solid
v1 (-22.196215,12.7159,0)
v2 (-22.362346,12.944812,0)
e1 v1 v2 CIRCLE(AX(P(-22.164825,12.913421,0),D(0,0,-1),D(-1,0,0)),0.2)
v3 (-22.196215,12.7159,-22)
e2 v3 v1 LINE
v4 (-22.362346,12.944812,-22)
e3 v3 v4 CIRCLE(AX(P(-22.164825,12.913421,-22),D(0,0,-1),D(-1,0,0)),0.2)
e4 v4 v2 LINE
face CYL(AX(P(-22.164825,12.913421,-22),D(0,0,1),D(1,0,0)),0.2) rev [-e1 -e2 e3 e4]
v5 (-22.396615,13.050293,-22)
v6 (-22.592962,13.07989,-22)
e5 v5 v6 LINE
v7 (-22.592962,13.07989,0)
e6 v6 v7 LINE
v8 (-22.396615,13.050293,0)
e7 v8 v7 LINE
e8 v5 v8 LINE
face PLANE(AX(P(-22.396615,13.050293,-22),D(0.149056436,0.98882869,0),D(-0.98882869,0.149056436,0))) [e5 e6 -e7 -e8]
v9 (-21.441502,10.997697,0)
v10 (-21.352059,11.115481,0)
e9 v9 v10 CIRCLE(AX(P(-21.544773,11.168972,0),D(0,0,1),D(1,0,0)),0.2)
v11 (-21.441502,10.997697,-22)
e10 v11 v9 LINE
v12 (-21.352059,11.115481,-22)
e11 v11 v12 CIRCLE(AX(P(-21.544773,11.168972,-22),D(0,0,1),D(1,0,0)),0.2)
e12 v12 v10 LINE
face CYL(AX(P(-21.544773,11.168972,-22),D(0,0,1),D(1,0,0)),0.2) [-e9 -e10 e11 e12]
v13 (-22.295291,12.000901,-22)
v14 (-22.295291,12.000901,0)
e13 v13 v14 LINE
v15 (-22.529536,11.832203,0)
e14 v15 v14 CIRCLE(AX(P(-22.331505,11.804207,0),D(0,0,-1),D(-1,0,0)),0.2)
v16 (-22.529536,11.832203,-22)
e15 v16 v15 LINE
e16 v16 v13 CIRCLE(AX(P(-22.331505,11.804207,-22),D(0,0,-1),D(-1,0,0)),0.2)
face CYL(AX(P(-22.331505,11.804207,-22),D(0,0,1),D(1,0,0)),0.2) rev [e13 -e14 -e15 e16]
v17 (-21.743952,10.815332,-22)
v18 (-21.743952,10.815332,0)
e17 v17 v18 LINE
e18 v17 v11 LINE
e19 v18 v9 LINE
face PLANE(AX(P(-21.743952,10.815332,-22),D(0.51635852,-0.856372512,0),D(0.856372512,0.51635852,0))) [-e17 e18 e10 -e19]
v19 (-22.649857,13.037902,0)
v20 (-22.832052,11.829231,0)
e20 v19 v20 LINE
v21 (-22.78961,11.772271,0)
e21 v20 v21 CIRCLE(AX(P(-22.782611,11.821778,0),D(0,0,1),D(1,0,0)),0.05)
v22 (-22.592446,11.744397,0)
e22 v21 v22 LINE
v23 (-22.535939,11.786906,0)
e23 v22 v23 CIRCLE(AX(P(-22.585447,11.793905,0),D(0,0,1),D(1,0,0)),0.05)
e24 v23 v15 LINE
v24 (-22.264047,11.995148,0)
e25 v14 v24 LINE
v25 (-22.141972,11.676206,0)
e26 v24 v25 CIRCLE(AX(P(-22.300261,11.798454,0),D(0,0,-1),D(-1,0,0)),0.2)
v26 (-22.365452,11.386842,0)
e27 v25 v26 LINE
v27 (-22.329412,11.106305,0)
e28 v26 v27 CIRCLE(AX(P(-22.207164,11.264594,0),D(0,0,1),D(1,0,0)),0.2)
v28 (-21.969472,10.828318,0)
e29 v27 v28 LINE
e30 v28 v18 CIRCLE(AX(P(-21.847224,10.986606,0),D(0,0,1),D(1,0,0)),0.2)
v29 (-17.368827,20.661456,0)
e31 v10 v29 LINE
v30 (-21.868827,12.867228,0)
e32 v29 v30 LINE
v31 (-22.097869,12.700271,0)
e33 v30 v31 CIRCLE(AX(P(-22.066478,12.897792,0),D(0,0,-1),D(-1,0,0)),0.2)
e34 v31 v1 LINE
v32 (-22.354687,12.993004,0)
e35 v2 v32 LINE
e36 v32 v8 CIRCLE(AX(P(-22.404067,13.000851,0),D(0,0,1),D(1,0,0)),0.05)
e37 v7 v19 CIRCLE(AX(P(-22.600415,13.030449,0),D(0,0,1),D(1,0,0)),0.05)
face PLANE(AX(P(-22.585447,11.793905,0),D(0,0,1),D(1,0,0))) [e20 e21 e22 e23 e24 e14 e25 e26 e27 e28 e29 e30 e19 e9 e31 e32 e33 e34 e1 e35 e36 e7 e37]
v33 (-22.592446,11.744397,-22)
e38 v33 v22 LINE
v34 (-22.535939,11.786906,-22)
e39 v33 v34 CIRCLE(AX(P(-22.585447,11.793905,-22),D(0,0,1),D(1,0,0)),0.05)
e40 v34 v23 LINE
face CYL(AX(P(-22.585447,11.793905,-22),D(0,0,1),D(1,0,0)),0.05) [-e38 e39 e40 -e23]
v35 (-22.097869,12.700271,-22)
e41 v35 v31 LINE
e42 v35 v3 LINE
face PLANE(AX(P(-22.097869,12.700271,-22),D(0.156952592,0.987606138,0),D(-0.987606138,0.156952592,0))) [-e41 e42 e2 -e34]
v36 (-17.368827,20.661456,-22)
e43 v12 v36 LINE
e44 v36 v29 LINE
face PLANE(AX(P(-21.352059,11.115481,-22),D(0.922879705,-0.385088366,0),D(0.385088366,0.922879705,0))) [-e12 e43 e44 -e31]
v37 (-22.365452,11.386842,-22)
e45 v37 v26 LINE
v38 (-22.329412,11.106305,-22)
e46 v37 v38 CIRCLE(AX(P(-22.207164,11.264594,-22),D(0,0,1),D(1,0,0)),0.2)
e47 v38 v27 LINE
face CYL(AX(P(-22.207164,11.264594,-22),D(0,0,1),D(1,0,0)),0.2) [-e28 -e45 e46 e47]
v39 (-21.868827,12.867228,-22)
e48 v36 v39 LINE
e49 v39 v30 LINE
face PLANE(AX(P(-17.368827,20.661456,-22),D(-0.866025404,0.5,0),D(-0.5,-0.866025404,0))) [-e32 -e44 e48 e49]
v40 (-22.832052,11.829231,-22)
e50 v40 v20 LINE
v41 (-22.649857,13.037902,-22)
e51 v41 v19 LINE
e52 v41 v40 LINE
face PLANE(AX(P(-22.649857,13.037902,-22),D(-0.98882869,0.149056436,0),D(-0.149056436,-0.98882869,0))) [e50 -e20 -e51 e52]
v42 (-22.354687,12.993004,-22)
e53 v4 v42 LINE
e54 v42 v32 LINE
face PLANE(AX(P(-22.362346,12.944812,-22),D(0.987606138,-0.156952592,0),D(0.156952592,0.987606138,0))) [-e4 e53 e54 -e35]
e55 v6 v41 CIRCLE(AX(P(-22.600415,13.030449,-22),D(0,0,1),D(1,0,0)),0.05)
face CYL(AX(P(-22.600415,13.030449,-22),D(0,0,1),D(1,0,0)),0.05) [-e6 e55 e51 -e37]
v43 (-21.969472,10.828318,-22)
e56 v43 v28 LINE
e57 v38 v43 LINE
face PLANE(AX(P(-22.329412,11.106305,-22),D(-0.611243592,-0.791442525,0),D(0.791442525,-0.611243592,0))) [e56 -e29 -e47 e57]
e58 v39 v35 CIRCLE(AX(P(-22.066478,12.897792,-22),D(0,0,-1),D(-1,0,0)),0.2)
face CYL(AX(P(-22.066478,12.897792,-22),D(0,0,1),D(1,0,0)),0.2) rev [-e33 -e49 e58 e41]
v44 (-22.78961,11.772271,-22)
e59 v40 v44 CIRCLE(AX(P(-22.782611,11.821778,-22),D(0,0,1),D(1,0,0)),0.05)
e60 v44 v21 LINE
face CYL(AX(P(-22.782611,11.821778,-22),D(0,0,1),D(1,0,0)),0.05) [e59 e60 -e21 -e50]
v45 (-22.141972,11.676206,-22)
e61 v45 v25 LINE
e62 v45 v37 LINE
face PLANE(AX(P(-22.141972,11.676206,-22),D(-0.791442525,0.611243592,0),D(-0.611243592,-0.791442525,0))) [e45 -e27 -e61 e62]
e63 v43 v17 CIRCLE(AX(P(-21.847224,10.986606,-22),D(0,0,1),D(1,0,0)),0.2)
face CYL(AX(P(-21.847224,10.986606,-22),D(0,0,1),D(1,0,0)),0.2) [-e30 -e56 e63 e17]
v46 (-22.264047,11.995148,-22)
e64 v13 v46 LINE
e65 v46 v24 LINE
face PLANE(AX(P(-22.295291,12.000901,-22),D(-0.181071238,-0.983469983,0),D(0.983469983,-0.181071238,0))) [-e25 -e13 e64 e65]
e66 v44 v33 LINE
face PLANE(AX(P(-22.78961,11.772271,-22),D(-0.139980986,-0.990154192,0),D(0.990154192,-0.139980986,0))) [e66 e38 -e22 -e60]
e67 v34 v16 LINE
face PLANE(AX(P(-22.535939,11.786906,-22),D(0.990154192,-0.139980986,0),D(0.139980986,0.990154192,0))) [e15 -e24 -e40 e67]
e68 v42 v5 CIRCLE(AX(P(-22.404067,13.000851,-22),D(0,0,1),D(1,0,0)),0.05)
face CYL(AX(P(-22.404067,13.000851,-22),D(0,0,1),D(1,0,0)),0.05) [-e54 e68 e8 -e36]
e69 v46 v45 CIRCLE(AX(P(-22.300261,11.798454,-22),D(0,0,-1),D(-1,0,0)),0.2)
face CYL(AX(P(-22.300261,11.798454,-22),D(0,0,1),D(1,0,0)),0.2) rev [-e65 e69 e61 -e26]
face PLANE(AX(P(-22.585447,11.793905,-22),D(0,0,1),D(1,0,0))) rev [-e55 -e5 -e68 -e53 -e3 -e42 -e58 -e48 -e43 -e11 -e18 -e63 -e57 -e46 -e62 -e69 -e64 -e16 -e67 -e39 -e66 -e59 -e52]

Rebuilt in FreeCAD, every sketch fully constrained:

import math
import FreeCAD as App
import Part
import Sketcher
Q = App.Units.Quantity

doc = App.newDocument("Part")
body = doc.addObject("PartDesign::Body", "Body")

sketch1 = body.newObject("Sketcher::SketchObject", "Sketch")
sketch1.AttachmentSupport = (doc.getObject("XY_Plane"), [""])
sketch1.MapMode = "FlatFace"
sketch1.addGeometry([
    Part.LineSegment(App.Vector(-21.352059, 11.115481, 0), App.Vector(-17.368827, 20.661456, 0)),
    Part.LineSegment(App.Vector(-17.368827, 20.661456, 0), App.Vector(-21.868827, 12.867228, 0)),
    Part.ArcOfCircle(Part.Circle(App.Vector(-22.066478, 12.897792, 0), App.Vector(0, 0, 1), 0.2), math.radians(-99.030058), math.radians(-8.790376)),
    Part.LineSegment(App.Vector(-22.097869, 12.700271, 0), App.Vector(-22.196215, 12.7159, 0)),
    Part.ArcOfCircle(Part.Circle(App.Vector(-22.164825, 12.913421, 0), App.Vector(0, 0, 1), 0.2), math.radians(170.969942), math.radians(260.969943)),
    Part.LineSegment(App.Vector(-22.362346, 12.944812, 0), App.Vector(-22.354687, 12.993004, 0)),
    Part.ArcOfCircle(Part.Circle(App.Vector(-22.404067, 13.000851, 0), App.Vector(0, 0, 1), 0.05), math.radians(-9.030057), math.radians(81.427749)),
    Part.LineSegment(App.Vector(-22.396615, 13.050293, 0), App.Vector(-22.592962, 13.07989, 0)),
    Part.ArcOfCircle(Part.Circle(App.Vector(-22.600415, 13.030449, 0), App.Vector(0, 0, 1), 0.05), math.radians(81.427751), math.radians(171.42775)),
    Part.LineSegment(App.Vector(-22.649857, 13.037902, 0), App.Vector(-22.832052, 11.829231, 0)),
    Part.ArcOfCircle(Part.Circle(App.Vector(-22.782611, 11.821778, 0), App.Vector(0, 0, 1), 0.05), math.radians(171.427751), math.radians(261.953253)),
    Part.LineSegment(App.Vector(-22.78961, 11.772271, 0), App.Vector(-22.592446, 11.744397, 0)),
    Part.ArcOfCircle(Part.Circle(App.Vector(-22.585447, 11.793905, 0), App.Vector(0, 0, 1), 0.05), math.radians(-98.046746), math.radians(-8.046747)),
    Part.LineSegment(App.Vector(-22.535939, 11.786906, 0), App.Vector(-22.529536, 11.832203, 0)),
    Part.ArcOfCircle(Part.Circle(App.Vector(-22.331505, 11.804207, 0), App.Vector(0, 0, 1), 0.2), math.radians(79.567837), math.radians(171.953254)),
    Part.LineSegment(App.Vector(-22.295291, 12.000901, 0), App.Vector(-22.264047, 11.995148, 0)),
    Part.ArcOfCircle(Part.Circle(App.Vector(-22.300261, 11.798454, 0), App.Vector(0, 0, 1), 0.2), math.radians(-37.679477), math.radians(79.567837)),
    Part.LineSegment(App.Vector(-22.141972, 11.676206, 0), App.Vector(-22.365452, 11.386842, 0)),
    Part.ArcOfCircle(Part.Circle(App.Vector(-22.207164, 11.264594, 0), App.Vector(0, 0, 1), 0.2), math.radians(142.320523), math.radians(232.320523)),
    Part.LineSegment(App.Vector(-22.329412, 11.106305, 0), App.Vector(-21.969472, 10.828318, 0)),
    Part.ArcOfCircle(Part.Circle(App.Vector(-21.847224, 10.986606, 0), App.Vector(0, 0, 1), 0.2), math.radians(-127.679478), math.radians(-58.911696)),
    Part.LineSegment(App.Vector(-21.743952, 10.815332, 0), App.Vector(-21.441502, 10.997697, 0)),
    Part.ArcOfCircle(Part.Circle(App.Vector(-21.544773, 11.168972, 0), App.Vector(0, 0, 1), 0.2), math.radians(-58.911696), math.radians(-15.512793)),
], False)
sketch1.addConstraint([
    Sketcher.Constraint("Coincident", 0, 2, 1, 1),
    Sketcher.Constraint("Coincident", 1, 2, 2, 2),
    Sketcher.Constraint("Coincident", 2, 1, 3, 1),
    Sketcher.Constraint("Coincident", 3, 2, 4, 2),
    Sketcher.Constraint("Coincident", 4, 1, 5, 1),
    Sketcher.Constraint("Coincident", 5, 2, 6, 1),
    Sketcher.Constraint("Coincident", 6, 2, 7, 1),
    Sketcher.Constraint("Coincident", 7, 2, 8, 1),
    Sketcher.Constraint("Coincident", 8, 2, 9, 1),
    Sketcher.Constraint("Coincident", 9, 2, 10, 1),
    Sketcher.Constraint("Coincident", 10, 2, 11, 1),
    Sketcher.Constraint("Coincident", 11, 2, 12, 1),
    Sketcher.Constraint("Coincident", 12, 2, 13, 1),
    Sketcher.Constraint("Coincident", 13, 2, 14, 2),
    Sketcher.Constraint("Coincident", 14, 1, 15, 1),
    Sketcher.Constraint("Coincident", 15, 2, 16, 2),
    Sketcher.Constraint("Coincident", 16, 1, 17, 1),
    Sketcher.Constraint("Coincident", 17, 2, 18, 1),
    Sketcher.Constraint("Coincident", 18, 2, 19, 1),
    Sketcher.Constraint("Coincident", 19, 2, 20, 1),
    Sketcher.Constraint("Coincident", 20, 2, 21, 1),
    Sketcher.Constraint("Coincident", 21, 2, 22, 1),
    Sketcher.Constraint("Coincident", 22, 2, 0, 1),
    Sketcher.Constraint("Radius", 2, Q("0.2 mm")),
    Sketcher.Constraint("Radius", 4, Q("0.2 mm")),
    Sketcher.Constraint("Radius", 14, Q("0.2 mm")),
    Sketcher.Constraint("Radius", 16, Q("0.2 mm")),
    Sketcher.Constraint("Radius", 18, Q("0.2 mm")),
    Sketcher.Constraint("Radius", 20, Q("0.2 mm")),
    Sketcher.Constraint("Radius", 22, Q("0.2 mm")),
    Sketcher.Constraint("Radius", 6, Q("0.05 mm")),
    Sketcher.Constraint("Radius", 8, Q("0.05 mm")),
    Sketcher.Constraint("Radius", 10, Q("0.05 mm")),
    Sketcher.Constraint("Radius", 12, Q("0.05 mm")),
    Sketcher.Constraint("Distance", 1, Q("9 mm")),
    Sketcher.Constraint("DistanceX", 10, 2, 10, 3, Q("0.006999 mm")),
    Sketcher.Constraint("DistanceX", 11, 2, 12, 3, Q("0.006999 mm")),
    Sketcher.Constraint("DistanceY", 12, 2, 12, 3, Q("0.006999 mm")),
    Sketcher.Constraint("DistanceY", 16, 1, 14, 3, Q("0.128001 mm")),
    Sketcher.Constraint("DistanceY", -1, 1, 3, 2, Q("12.7159 mm")),
    Sketcher.Constraint("DistanceY", -1, 1, 8, 2, Q("13.037902 mm")),
    Sketcher.Constraint("DistanceY", -1, 1, 14, 1, Q("12.000901 mm")),
    Sketcher.Constraint("DistanceX", 21, 2, -1, 1, Q("21.441502 mm")),
    Sketcher.Constraint("DistanceY", 12, 3, 14, 3, Q("0.010302 mm")),
    Sketcher.Constraint("DistanceY", 18, 3, 2, 3, Q("1.633198 mm")),
    Sketcher.Constraint("DistanceY", 20, 3, 14, 3, Q("0.8176 mm")),
    Sketcher.Constraint("DistanceX", 6, 3, 2, 1, Q("0.306199 mm")),
    Sketcher.Constraint("DistanceX", 8, 3, 6, 2, Q("0.203801 mm")),
    Sketcher.Constraint("DistanceY", 12, 3, 13, 2, Q("0.038298 mm")),
    Sketcher.Constraint("DistanceY", 20, 3, 18, 2, Q("0.119699 mm")),
    Sketcher.Constraint("DistanceX", 19, 2, 22, 3, Q("0.424699 mm")),
    Sketcher.Constraint("Distance", 3, Q("0.099581 mm")),
    Sketcher.Constraint("Distance", 15, Q("0.031769 mm")),
    Sketcher.Constraint("Distance", 19, Q("0.45479 mm")),
    Sketcher.Constraint("DistanceX", 2, 3, -1, 1, Q("22.066478 mm")),
    Sketcher.Constraint("DistanceY", -1, 1, 2, 3, Q("12.897792 mm")),
    Sketcher.Constraint("DistanceY", -1, 1, 4, 3, Q("12.913421 mm")),
    Sketcher.Constraint("DistanceY", -1, 1, 6, 3, Q("13.000851 mm")),
    Sketcher.Constraint("DistanceY", -1, 1, 8, 3, Q("13.030449 mm")),
    Sketcher.Constraint("DistanceX", 10, 3, -1, 1, Q("22.782611 mm")),
    Sketcher.Constraint("DistanceY", -1, 1, 10, 3, Q("11.821778 mm")),
    Sketcher.Constraint("DistanceX", 16, 3, -1, 1, Q("22.300261 mm")),
    Sketcher.Constraint("DistanceY", -1, 1, 22, 3, Q("11.168972 mm")),
    Sketcher.Constraint("DistanceX", 2, 1, -1, 1, Q("22.097869 mm")),
    Sketcher.Constraint("DistanceY", -1, 1, 4, 1, Q("12.944812 mm")),
    Sketcher.Constraint("DistanceY", -1, 1, 7, 2, Q("13.07989 mm")),
    Sketcher.Constraint("DistanceY", -1, 1, 9, 2, Q("11.829231 mm")),
    Sketcher.Constraint("DistanceX", 12, 2, -1, 1, Q("22.535939 mm")),
    Sketcher.Constraint("DistanceX", 14, 1, -1, 1, Q("22.295291 mm")),
    Sketcher.Constraint("DistanceY", -1, 1, 15, 2, Q("11.995148 mm")),
    Sketcher.Constraint("DistanceY", -1, 1, 20, 2, Q("10.815332 mm")),
    Sketcher.Constraint("DistanceX", 22, 2, -1, 1, Q("21.352059 mm")),
    Sketcher.Constraint("DistanceY", -1, 1, 22, 2, Q("11.115481 mm")),
    Sketcher.Constraint("DistanceX", 8, 3, 4, 3, Q("0.43559 mm")),
    Sketcher.Constraint("DistanceY", 14, 3, 10, 3, Q("0.017572 mm")),
    Sketcher.Constraint("DistanceX", 14, 3, 18, 3, Q("0.124341 mm")),
    Sketcher.Constraint("DistanceX", 2, 3, 0, 2, Q("4.697651 mm")),
    Sketcher.Constraint("DistanceX", 2, 3, 1, 2, Q("0.197651 mm")),
    Sketcher.Constraint("DistanceX", 4, 1, 5, 2, Q("0.007659 mm")),
    Sketcher.Constraint("DistanceX", 17, 2, 18, 3, Q("0.158289 mm")),
])
pad1 = body.newObject("PartDesign::Pad", "Pad")
pad1.Profile = sketch1
pad1.Length = 22
pad1.Reversed = True

doc.recompute()
